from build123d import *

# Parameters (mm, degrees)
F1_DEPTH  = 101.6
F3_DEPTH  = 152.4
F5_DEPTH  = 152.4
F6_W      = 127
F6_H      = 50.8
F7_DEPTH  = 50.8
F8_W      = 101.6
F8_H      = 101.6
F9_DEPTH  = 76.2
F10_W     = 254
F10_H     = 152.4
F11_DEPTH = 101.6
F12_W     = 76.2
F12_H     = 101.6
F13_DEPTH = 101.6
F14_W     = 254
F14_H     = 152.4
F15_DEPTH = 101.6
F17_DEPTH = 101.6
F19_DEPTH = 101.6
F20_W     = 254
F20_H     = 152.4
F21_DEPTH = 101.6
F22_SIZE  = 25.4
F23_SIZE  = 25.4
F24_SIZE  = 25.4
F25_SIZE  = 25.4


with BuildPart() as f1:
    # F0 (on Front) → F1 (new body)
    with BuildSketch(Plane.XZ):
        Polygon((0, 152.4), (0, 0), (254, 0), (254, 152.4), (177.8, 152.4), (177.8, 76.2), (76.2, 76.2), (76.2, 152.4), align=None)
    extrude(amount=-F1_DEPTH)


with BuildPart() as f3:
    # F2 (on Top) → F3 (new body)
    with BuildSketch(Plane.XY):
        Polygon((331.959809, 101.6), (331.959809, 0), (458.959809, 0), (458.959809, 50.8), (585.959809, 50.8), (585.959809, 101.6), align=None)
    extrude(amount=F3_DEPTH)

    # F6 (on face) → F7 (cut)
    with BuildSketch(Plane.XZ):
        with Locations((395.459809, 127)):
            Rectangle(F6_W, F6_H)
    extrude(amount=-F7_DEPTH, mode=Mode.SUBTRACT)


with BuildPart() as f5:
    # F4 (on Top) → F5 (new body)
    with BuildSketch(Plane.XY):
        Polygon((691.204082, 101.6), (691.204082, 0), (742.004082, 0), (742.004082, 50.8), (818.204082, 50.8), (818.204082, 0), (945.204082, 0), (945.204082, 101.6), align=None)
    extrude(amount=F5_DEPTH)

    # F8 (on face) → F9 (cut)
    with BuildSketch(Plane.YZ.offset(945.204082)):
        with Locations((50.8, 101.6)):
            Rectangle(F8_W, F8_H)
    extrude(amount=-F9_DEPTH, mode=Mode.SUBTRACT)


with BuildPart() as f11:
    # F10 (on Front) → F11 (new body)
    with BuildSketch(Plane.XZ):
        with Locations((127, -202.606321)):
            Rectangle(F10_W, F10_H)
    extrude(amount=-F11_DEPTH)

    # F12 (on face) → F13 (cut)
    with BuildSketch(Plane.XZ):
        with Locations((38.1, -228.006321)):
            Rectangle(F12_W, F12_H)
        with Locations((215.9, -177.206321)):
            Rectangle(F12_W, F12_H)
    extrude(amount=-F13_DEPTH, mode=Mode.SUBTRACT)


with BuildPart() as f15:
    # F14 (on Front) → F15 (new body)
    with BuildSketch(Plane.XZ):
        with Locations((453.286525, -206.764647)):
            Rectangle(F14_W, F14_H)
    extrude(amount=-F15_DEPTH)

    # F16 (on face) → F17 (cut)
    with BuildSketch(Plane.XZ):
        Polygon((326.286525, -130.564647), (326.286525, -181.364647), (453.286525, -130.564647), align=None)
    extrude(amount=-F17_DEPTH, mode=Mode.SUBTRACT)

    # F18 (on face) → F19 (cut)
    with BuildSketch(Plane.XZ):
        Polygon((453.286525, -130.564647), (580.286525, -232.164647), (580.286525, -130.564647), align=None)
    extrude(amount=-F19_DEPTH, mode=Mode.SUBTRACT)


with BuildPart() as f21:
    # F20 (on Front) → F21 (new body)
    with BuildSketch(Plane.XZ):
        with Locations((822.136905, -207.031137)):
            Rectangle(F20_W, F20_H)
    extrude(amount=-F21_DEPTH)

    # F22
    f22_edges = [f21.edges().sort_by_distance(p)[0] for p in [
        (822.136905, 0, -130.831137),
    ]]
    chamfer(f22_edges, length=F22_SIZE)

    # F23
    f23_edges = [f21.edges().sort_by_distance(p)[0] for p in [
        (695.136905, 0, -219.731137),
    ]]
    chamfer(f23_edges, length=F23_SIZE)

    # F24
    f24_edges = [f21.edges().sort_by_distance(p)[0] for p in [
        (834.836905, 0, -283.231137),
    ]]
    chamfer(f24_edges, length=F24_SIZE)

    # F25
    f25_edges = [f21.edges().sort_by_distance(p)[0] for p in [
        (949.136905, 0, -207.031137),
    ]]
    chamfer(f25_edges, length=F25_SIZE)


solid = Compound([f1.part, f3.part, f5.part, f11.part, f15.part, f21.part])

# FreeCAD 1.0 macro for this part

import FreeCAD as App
import Part
import Sketcher
Q = App.Units.Quantity


def edges_at(feature, points):
    """Names of the edges that pass closest to the given points."""
    edges = feature.Shape.Edges
    near = lambda p: min(range(len(edges)), key=lambda i: edges[i].distToShape(Part.Vertex(*p))[0])
    return sorted({f"Edge{near(p) + 1}" for p in points})

doc = App.newDocument("Part")
body = doc.addObject("PartDesign::Body", "Body")

sketch1 = doc.addObject("Sketcher::SketchObject", "Sketch")
body.addObject(sketch1)
sketch1.AttachmentSupport = (doc.XZ_Plane, [""])
sketch1.MapMode = "FlatFace"
sketch1.addGeometry(Part.LineSegment(App.Vector(0, 152.4, 0), App.Vector(0, 0, 0)), False)
sketch1.addGeometry(Part.LineSegment(App.Vector(0, 0, 0), App.Vector(254, 0, 0)), False)
sketch1.addGeometry(Part.LineSegment(App.Vector(254, 0, 0), App.Vector(254, 152.4, 0)), False)
sketch1.addGeometry(Part.LineSegment(App.Vector(254, 152.4, 0), App.Vector(177.8, 152.4, 0)), False)
sketch1.addGeometry(Part.LineSegment(App.Vector(177.8, 152.4, 0), App.Vector(177.8, 76.2, 0)), False)
sketch1.addGeometry(Part.LineSegment(App.Vector(177.8, 76.2, 0), App.Vector(76.2, 76.2, 0)), False)
sketch1.addGeometry(Part.LineSegment(App.Vector(76.2, 76.2, 0), App.Vector(76.2, 152.4, 0)), False)
sketch1.addGeometry(Part.LineSegment(App.Vector(76.2, 152.4, 0), App.Vector(0, 152.4, 0)), False)
sketch1.addConstraint(Sketcher.Constraint("Coincident", 0, 2, 1, 1))
sketch1.addConstraint(Sketcher.Constraint("Coincident", 1, 2, 2, 1))
sketch1.addConstraint(Sketcher.Constraint("Coincident", 2, 2, 3, 1))
sketch1.addConstraint(Sketcher.Constraint("Coincident", 3, 2, 4, 1))
sketch1.addConstraint(Sketcher.Constraint("Coincident", 4, 2, 5, 1))
sketch1.addConstraint(Sketcher.Constraint("Coincident", 5, 2, 6, 1))
sketch1.addConstraint(Sketcher.Constraint("Coincident", 6, 2, 7, 1))
sketch1.addConstraint(Sketcher.Constraint("Coincident", 7, 2, 0, 1))
sketch1.addConstraint(Sketcher.Constraint("Vertical", 0))
sketch1.addConstraint(Sketcher.Constraint("Horizontal", 1))
sketch1.addConstraint(Sketcher.Constraint("Vertical", 2))
sketch1.addConstraint(Sketcher.Constraint("Horizontal", 3))
sketch1.addConstraint(Sketcher.Constraint("Vertical", 4))
sketch1.addConstraint(Sketcher.Constraint("Horizontal", 5))
sketch1.addConstraint(Sketcher.Constraint("Vertical", 6))
sketch1.addConstraint(Sketcher.Constraint("Horizontal", 7))
sketch1.addConstraint(Sketcher.Constraint("Coincident", 0, 2, -1, 1))
sketch1.addConstraint(Sketcher.Constraint("Horizontal", 3, 2, 6, 2))
sketch1.addConstraint(Sketcher.Constraint("Equal", 3, 7))
sketch1.addConstraint(Sketcher.Constraint("Equal", 7, 4))
sketch1.addConstraint(Sketcher.Constraint("DistanceX", 1, 1, 1, 2, Q("10 in")))
sketch1.addConstraint(Sketcher.Constraint("DistanceX", 3, 2, 3, 1, Q("3 in")))
sketch1.addConstraint(Sketcher.Constraint("DistanceY", 0, 2, 0, 1, Q("6 in")))
pad1 = doc.addObject("PartDesign::Pad", "Pad")
body.addObject(pad1)
pad1.Profile = sketch1
pad1.Length = Q("4 in")
pad1.Reversed = True
body2 = doc.addObject("PartDesign::Body", "Body001")

sketch2 = doc.addObject("Sketcher::SketchObject", "Sketch001")
body2.addObject(sketch2)
sketch2.AttachmentSupport = (doc.getObject("XY_Plane001"), [""])
sketch2.MapMode = "FlatFace"
sketch2.addGeometry(Part.LineSegment(App.Vector(331.959809, 101.6, 0), App.Vector(331.959809, 0, 0)), False)
sketch2.addGeometry(Part.LineSegment(App.Vector(331.959809, 0, 0), App.Vector(458.959809, 0, 0)), False)
sketch2.addGeometry(Part.LineSegment(App.Vector(458.959809, 0, 0), App.Vector(458.959809, 50.8, 0)), False)
sketch2.addGeometry(Part.LineSegment(App.Vector(458.959809, 50.8, 0), App.Vector(585.959809, 50.8, 0)), False)
sketch2.addGeometry(Part.LineSegment(App.Vector(585.959809, 50.8, 0), App.Vector(585.959809, 101.6, 0)), False)
sketch2.addGeometry(Part.LineSegment(App.Vector(585.959809, 101.6, 0), App.Vector(331.959809, 101.6, 0)), False)
sketch2.addConstraint(Sketcher.Constraint("Coincident", 0, 2, 1, 1))
sketch2.addConstraint(Sketcher.Constraint("Coincident", 1, 2, 2, 1))
sketch2.addConstraint(Sketcher.Constraint("Coincident", 2, 2, 3, 1))
sketch2.addConstraint(Sketcher.Constraint("Coincident", 3, 2, 4, 1))
sketch2.addConstraint(Sketcher.Constraint("Coincident", 4, 2, 5, 1))
sketch2.addConstraint(Sketcher.Constraint("Coincident", 5, 2, 0, 1))
sketch2.addConstraint(Sketcher.Constraint("Vertical", 0))
sketch2.addConstraint(Sketcher.Constraint("Horizontal", 1))
sketch2.addConstraint(Sketcher.Constraint("Vertical", 2))
sketch2.addConstraint(Sketcher.Constraint("Horizontal", 3))
sketch2.addConstraint(Sketcher.Constraint("Vertical", 4))
sketch2.addConstraint(Sketcher.Constraint("Horizontal", 5))
sketch2.addConstraint(Sketcher.Constraint("PointOnObject", 0, 2, -1))
sketch2.addConstraint(Sketcher.Constraint("Equal", 1, 3))
sketch2.addConstraint(Sketcher.Constraint("Equal", 2, 4))
sketch2.addConstraint(Sketcher.Constraint("DistanceX", 1, 1, 1, 2, Q("5 in")))
sketch2.addConstraint(Sketcher.Constraint("DistanceY", 0, 2, 0, 1, Q("4 in")))
sketch2.addConstraint(Sketcher.Constraint("DistanceX", -1, 1, 0, 2, 331.959809))
pad2 = doc.addObject("PartDesign::Pad", "Pad001")
body2.addObject(pad2)
pad2.Profile = sketch2
pad2.Length = Q("6 in")

sketch3 = doc.addObject("Sketcher::SketchObject", "Sketch002")
body2.addObject(sketch3)
sketch3.AttachmentSupport = (doc.getObject("XZ_Plane001"), [""])
sketch3.MapMode = "FlatFace"
sketch3.addGeometry(Part.LineSegment(App.Vector(331.959809, 152.4, 0), App.Vector(331.959809, 101.6, 0)), False)
sketch3.addGeometry(Part.LineSegment(App.Vector(331.959809, 101.6, 0), App.Vector(458.959809, 101.6, 0)), False)
sketch3.addGeometry(Part.LineSegment(App.Vector(458.959809, 101.6, 0), App.Vector(458.959809, 152.4, 0)), False)
sketch3.addGeometry(Part.LineSegment(App.Vector(458.959809, 152.4, 0), App.Vector(331.959809, 152.4, 0)), False)
sketch3.addConstraint(Sketcher.Constraint("Coincident", 0, 2, 1, 1))
sketch3.addConstraint(Sketcher.Constraint("Coincident", 1, 2, 2, 1))
sketch3.addConstraint(Sketcher.Constraint("Coincident", 2, 2, 3, 1))
sketch3.addConstraint(Sketcher.Constraint("Coincident", 3, 2, 0, 1))
sketch3.addConstraint(Sketcher.Constraint("Vertical", 0))
sketch3.addConstraint(Sketcher.Constraint("Horizontal", 1))
sketch3.addConstraint(Sketcher.Constraint("Vertical", 2))
sketch3.addConstraint(Sketcher.Constraint("Horizontal", 3))
sketch3.addConstraint(Sketcher.Constraint("DistanceX", 1, 1, 1, 2, Q("5 in")))
sketch3.addConstraint(Sketcher.Constraint("DistanceY", 0, 2, 0, 1, Q("2 in")))
sketch3.addConstraint(Sketcher.Constraint("DistanceY", -1, 1, 0, 2, Q("4 in")))
sketch3.addConstraint(Sketcher.Constraint("DistanceX", -1, 1, 0, 2, 331.959809))
pocket1 = doc.addObject("PartDesign::Pocket", "Pocket")
body2.addObject(pocket1)
pocket1.Profile = sketch3
pocket1.Length = Q("2 in")
body3 = doc.addObject("PartDesign::Body", "Body002")

sketch4 = doc.addObject("Sketcher::SketchObject", "Sketch003")
body3.addObject(sketch4)
sketch4.AttachmentSupport = (doc.getObject("XY_Plane002"), [""])
sketch4.MapMode = "FlatFace"
sketch4.addGeometry(Part.LineSegment(App.Vector(691.204082, 101.6, 0), App.Vector(691.204082, 0, 0)), False)
sketch4.addGeometry(Part.LineSegment(App.Vector(691.204082, 0, 0), App.Vector(742.004082, 0, 0)), False)
sketch4.addGeometry(Part.LineSegment(App.Vector(742.004082, 0, 0), App.Vector(742.004082, 50.8, 0)), False)
sketch4.addGeometry(Part.LineSegment(App.Vector(742.004082, 50.8, 0), App.Vector(818.204082, 50.8, 0)), False)
sketch4.addGeometry(Part.LineSegment(App.Vector(818.204082, 50.8, 0), App.Vector(818.204082, 0, 0)), False)
sketch4.addGeometry(Part.LineSegment(App.Vector(818.204082, 0, 0), App.Vector(945.204082, 0, 0)), False)
sketch4.addGeometry(Part.LineSegment(App.Vector(945.204082, 0, 0), App.Vector(945.204082, 101.6, 0)), False)
sketch4.addGeometry(Part.LineSegment(App.Vector(945.204082, 101.6, 0), App.Vector(691.204082, 101.6, 0)), False)
sketch4.addConstraint(Sketcher.Constraint("Coincident", 0, 2, 1, 1))
sketch4.addConstraint(Sketcher.Constraint("Coincident", 1, 2, 2, 1))
sketch4.addConstraint(Sketcher.Constraint("Coincident", 2, 2, 3, 1))
sketch4.addConstraint(Sketcher.Constraint("Coincident", 3, 2, 4, 1))
sketch4.addConstraint(Sketcher.Constraint("Coincident", 4, 2, 5, 1))
sketch4.addConstraint(Sketcher.Constraint("Coincident", 5, 2, 6, 1))
sketch4.addConstraint(Sketcher.Constraint("Coincident", 6, 2, 7, 1))
sketch4.addConstraint(Sketcher.Constraint("Coincident", 7, 2, 0, 1))
sketch4.addConstraint(Sketcher.Constraint("Vertical", 0))
sketch4.addConstraint(Sketcher.Constraint("Horizontal", 1))
sketch4.addConstraint(Sketcher.Constraint("Vertical", 2))
sketch4.addConstraint(Sketcher.Constraint("Horizontal", 3))
sketch4.addConstraint(Sketcher.Constraint("Vertical", 4))
sketch4.addConstraint(Sketcher.Constraint("Horizontal", 5))
sketch4.addConstraint(Sketcher.Constraint("Vertical", 6))
sketch4.addConstraint(Sketcher.Constraint("Horizontal", 7))
sketch4.addConstraint(Sketcher.Constraint("PointOnObject", 0, 2, -1))
sketch4.addConstraint(Sketcher.Constraint("PointOnObject", 4, 2, -1))
sketch4.addConstraint(Sketcher.Constraint("Equal", 1, 2))
sketch4.addConstraint(Sketcher.Constraint("DistanceX", 1, 1, 1, 2, Q("2 in")))
sketch4.addConstraint(Sketcher.Constraint("DistanceX", 3, 1, 3, 2, Q("3 in")))
sketch4.addConstraint(Sketcher.Constraint("DistanceX", 5, 1, 5, 2, Q("5 in")))
sketch4.addConstraint(Sketcher.Constraint("DistanceY", 0, 2, 0, 1, Q("4 in")))
sketch4.addConstraint(Sketcher.Constraint("DistanceX", -1, 1, 0, 2, 691.204082))
pad3 = doc.addObject("PartDesign::Pad", "Pad002")
body3.addObject(pad3)
pad3.Profile = sketch4
pad3.Length = Q("6 in")

sketch5 = doc.addObject("Sketcher::SketchObject", "Sketch004")
body3.addObject(sketch5)
sketch5.AttachmentSupport = (doc.getObject("YZ_Plane002"), [""])
sketch5.MapMode = "FlatFace"
sketch5.AttachmentOffset = App.Placement(App.Vector(0, 0, 945.204082), App.Rotation())
sketch5.addGeometry(Part.LineSegment(App.Vector(0, 152.4, 0), App.Vector(0, 50.8, 0)), False)
sketch5.addGeometry(Part.LineSegment(App.Vector(0, 50.8, 0), App.Vector(101.6, 50.8, 0)), False)
sketch5.addGeometry(Part.LineSegment(App.Vector(101.6, 50.8, 0), App.Vector(101.6, 152.4, 0)), False)
sketch5.addGeometry(Part.LineSegment(App.Vector(101.6, 152.4, 0), App.Vector(0, 152.4, 0)), False)
sketch5.addConstraint(Sketcher.Constraint("Coincident", 0, 2, 1, 1))
sketch5.addConstraint(Sketcher.Constraint("Coincident", 1, 2, 2, 1))
sketch5.addConstraint(Sketcher.Constraint("Coincident", 2, 2, 3, 1))
sketch5.addConstraint(Sketcher.Constraint("Coincident", 3, 2, 0, 1))
sketch5.addConstraint(Sketcher.Constraint("Vertical", 0))
sketch5.addConstraint(Sketcher.Constraint("Horizontal", 1))
sketch5.addConstraint(Sketcher.Constraint("Vertical", 2))
sketch5.addConstraint(Sketcher.Constraint("Horizontal", 3))
sketch5.addConstraint(Sketcher.Constraint("PointOnObject", 0, 2, -2))
sketch5.addConstraint(Sketcher.Constraint("Equal", 3, 0))
sketch5.addConstraint(Sketcher.Constraint("DistanceX", 1, 1, 1, 2, Q("4 in")))
sketch5.addConstraint(Sketcher.Constraint("DistanceY", -1, 1, 0, 2, Q("2 in")))
pocket2 = doc.addObject("PartDesign::Pocket", "Pocket001")
body3.addObject(pocket2)
pocket2.Profile = sketch5
pocket2.Length = Q("3 in")
body4 = doc.addObject("PartDesign::Body", "Body003")

sketch6 = doc.addObject("Sketcher::SketchObject", "Sketch005")
body4.addObject(sketch6)
sketch6.AttachmentSupport = (doc.getObject("XZ_Plane003"), [""])
sketch6.MapMode = "FlatFace"
sketch6.addGeometry(Part.LineSegment(App.Vector(0, -126.406321, 0), App.Vector(0, -278.806321, 0)), False)
sketch6.addGeometry(Part.LineSegment(App.Vector(0, -278.806321, 0), App.Vector(254, -278.806321, 0)), False)
sketch6.addGeometry(Part.LineSegment(App.Vector(254, -278.806321, 0), App.Vector(254, -126.406321, 0)), False)
sketch6.addGeometry(Part.LineSegment(App.Vector(254, -126.406321, 0), App.Vector(0, -126.406321, 0)), False)
sketch6.addConstraint(Sketcher.Constraint("Coincident", 0, 2, 1, 1))
sketch6.addConstraint(Sketcher.Constraint("Coincident", 1, 2, 2, 1))
sketch6.addConstraint(Sketcher.Constraint("Coincident", 2, 2, 3, 1))
sketch6.addConstraint(Sketcher.Constraint("Coincident", 3, 2, 0, 1))
sketch6.addConstraint(Sketcher.Constraint("Vertical", 0))
sketch6.addConstraint(Sketcher.Constraint("Horizontal", 1))
sketch6.addConstraint(Sketcher.Constraint("Vertical", 2))
sketch6.addConstraint(Sketcher.Constraint("Horizontal", 3))
sketch6.addConstraint(Sketcher.Constraint("PointOnObject", 0, 2, -2))
sketch6.addConstraint(Sketcher.Constraint("DistanceX", 1, 1, 1, 2, Q("10 in")))
sketch6.addConstraint(Sketcher.Constraint("DistanceY", 0, 2, 0, 1, Q("6 in")))
sketch6.addConstraint(Sketcher.Constraint("DistanceY", 0, 2, -1, 1, 278.806321))
pad4 = doc.addObject("PartDesign::Pad", "Pad003")
body4.addObject(pad4)
pad4.Profile = sketch6
pad4.Length = Q("4 in")
pad4.Reversed = True

sketch7 = doc.addObject("Sketcher::SketchObject", "Sketch006")
body4.addObject(sketch7)
sketch7.AttachmentSupport = (doc.getObject("XZ_Plane003"), [""])
sketch7.MapMode = "FlatFace"
sketch7.addGeometry(Part.LineSegment(App.Vector(0, -177.206321, 0), App.Vector(0, -278.806321, 0)), False)
sketch7.addGeometry(Part.LineSegment(App.Vector(0, -278.806321, 0), App.Vector(76.2, -278.806321, 0)), False)
sketch7.addGeometry(Part.LineSegment(App.Vector(76.2, -278.806321, 0), App.Vector(76.2, -177.206321, 0)), False)
sketch7.addGeometry(Part.LineSegment(App.Vector(76.2, -177.206321, 0), App.Vector(0, -177.206321, 0)), False)
sketch7.addGeometry(Part.LineSegment(App.Vector(177.8, -126.406321, 0), App.Vector(177.8, -228.006321, 0)), False)
sketch7.addGeometry(Part.LineSegment(App.Vector(177.8, -228.006321, 0), App.Vector(254, -228.006321, 0)), False)
sketch7.addGeometry(Part.LineSegment(App.Vector(254, -228.006321, 0), App.Vector(254, -126.406321, 0)), False)
sketch7.addGeometry(Part.LineSegment(App.Vector(254, -126.406321, 0), App.Vector(177.8, -126.406321, 0)), False)
sketch7.addConstraint(Sketcher.Constraint("Coincident", 0, 2, 1, 1))
sketch7.addConstraint(Sketcher.Constraint("Coincident", 1, 2, 2, 1))
sketch7.addConstraint(Sketcher.Constraint("Coincident", 2, 2, 3, 1))
sketch7.addConstraint(Sketcher.Constraint("Coincident", 3, 2, 0, 1))
sketch7.addConstraint(Sketcher.Constraint("Coincident", 4, 2, 5, 1))
sketch7.addConstraint(Sketcher.Constraint("Coincident", 5, 2, 6, 1))
sketch7.addConstraint(Sketcher.Constraint("Coincident", 6, 2, 7, 1))
sketch7.addConstraint(Sketcher.Constraint("Coincident", 7, 2, 4, 1))
sketch7.addConstraint(Sketcher.Constraint("Vertical", 0))
sketch7.addConstraint(Sketcher.Constraint("Horizontal", 1))
sketch7.addConstraint(Sketcher.Constraint("Vertical", 2))
sketch7.addConstraint(Sketcher.Constraint("Horizontal", 3))
sketch7.addConstraint(Sketcher.Constraint("Vertical", 4))
sketch7.addConstraint(Sketcher.Constraint("Horizontal", 5))
sketch7.addConstraint(Sketcher.Constraint("Vertical", 6))
sketch7.addConstraint(Sketcher.Constraint("Horizontal", 7))
sketch7.addConstraint(Sketcher.Constraint("PointOnObject", 0, 2, -2))
sketch7.addConstraint(Sketcher.Constraint("Equal", 3, 5))
sketch7.addConstraint(Sketcher.Constraint("Equal", 2, 4))
sketch7.addConstraint(Sketcher.Constraint("DistanceX", 1, 1, 1, 2, Q("3 in")))
sketch7.addConstraint(Sketcher.Constraint("DistanceY", 0, 2, 0, 1, Q("4 in")))
sketch7.addConstraint(Sketcher.Constraint("DistanceX", -1, 1, 4, 2, Q("7 in")))
sketch7.addConstraint(Sketcher.Constraint("DistanceY", 1, 2, 4, 2, Q("2 in")))
sketch7.addConstraint(Sketcher.Constraint("DistanceY", 0, 2, -1, 1, 278.806321))
pocket3 = doc.addObject("PartDesign::Pocket", "Pocket002")
body4.addObject(pocket3)
pocket3.Profile = sketch7
pocket3.Length = Q("4 in")
body5 = doc.addObject("PartDesign::Body", "Body004")

sketch8 = doc.addObject("Sketcher::SketchObject", "Sketch007")
body5.addObject(sketch8)
sketch8.AttachmentSupport = (doc.getObject("XZ_Plane004"), [""])
sketch8.MapMode = "FlatFace"
sketch8.addGeometry(Part.LineSegment(App.Vector(326.286525, -130.564647, 0), App.Vector(326.286525, -282.964647, 0)), False)
sketch8.addGeometry(Part.LineSegment(App.Vector(326.286525, -282.964647, 0), App.Vector(580.286525, -282.964647, 0)), False)
sketch8.addGeometry(Part.LineSegment(App.Vector(580.286525, -282.964647, 0), App.Vector(580.286525, -130.564647, 0)), False)
sketch8.addGeometry(Part.LineSegment(App.Vector(580.286525, -130.564647, 0), App.Vector(326.286525, -130.564647, 0)), False)
sketch8.addConstraint(Sketcher.Constraint("Coincident", 0, 2, 1, 1))
sketch8.addConstraint(Sketcher.Constraint("Coincident", 1, 2, 2, 1))
sketch8.addConstraint(Sketcher.Constraint("Coincident", 2, 2, 3, 1))
sketch8.addConstraint(Sketcher.Constraint("Coincident", 3, 2, 0, 1))
sketch8.addConstraint(Sketcher.Constraint("Vertical", 0))
sketch8.addConstraint(Sketcher.Constraint("Horizontal", 1))
sketch8.addConstraint(Sketcher.Constraint("Vertical", 2))
sketch8.addConstraint(Sketcher.Constraint("Horizontal", 3))
sketch8.addConstraint(Sketcher.Constraint("DistanceX", 1, 1, 1, 2, Q("10 in")))
sketch8.addConstraint(Sketcher.Constraint("DistanceY", 0, 2, 0, 1, Q("6 in")))
sketch8.addConstraint(Sketcher.Constraint("DistanceX", -1, 1, 0, 2, 326.286525))
sketch8.addConstraint(Sketcher.Constraint("DistanceY", 0, 2, -1, 1, 282.964647))
pad5 = doc.addObject("PartDesign::Pad", "Pad004")
body5.addObject(pad5)
pad5.Profile = sketch8
pad5.Length = Q("4 in")
pad5.Reversed = True

sketch9 = doc.addObject("Sketcher::SketchObject", "Sketch008")
body5.addObject(sketch9)
sketch9.AttachmentSupport = (doc.getObject("XZ_Plane004"), [""])
sketch9.MapMode = "FlatFace"
sketch9.addGeometry(Part.LineSegment(App.Vector(326.286525, -130.564647, 0), App.Vector(326.286525, -181.364647, 0)), False)
sketch9.addGeometry(Part.LineSegment(App.Vector(326.286525, -181.364647, 0), App.Vector(453.286525, -130.564647, 0)), False)
sketch9.addGeometry(Part.LineSegment(App.Vector(453.286525, -130.564647, 0), App.Vector(326.286525, -130.564647, 0)), False)
sketch9.addConstraint(Sketcher.Constraint("Coincident", 0, 2, 1, 1))
sketch9.addConstraint(Sketcher.Constraint("Coincident", 1, 2, 2, 1))
sketch9.addConstraint(Sketcher.Constraint("Coincident", 2, 2, 0, 1))
sketch9.addConstraint(Sketcher.Constraint("Vertical", 0))
sketch9.addConstraint(Sketcher.Constraint("Horizontal", 2))
sketch9.addConstraint(Sketcher.Constraint("DistanceX", 2, 2, 2, 1, Q("5 in")))
sketch9.addConstraint(Sketcher.Constraint("DistanceY", 0, 2, 0, 1, Q("2 in")))
sketch9.addConstraint(Sketcher.Constraint("DistanceX", -1, 1, 0, 2, 326.286525))
sketch9.addConstraint(Sketcher.Constraint("DistanceY", 0, 2, -1, 1, 181.364647))
pocket4 = doc.addObject("PartDesign::Pocket", "Pocket003")
body5.addObject(pocket4)
pocket4.Profile = sketch9
pocket4.Length = Q("4 in")

sketch10 = doc.addObject("Sketcher::SketchObject", "Sketch009")
body5.addObject(sketch10)
sketch10.AttachmentSupport = (doc.getObject("XZ_Plane004"), [""])
sketch10.MapMode = "FlatFace"
sketch10.addGeometry(Part.LineSegment(App.Vector(453.286525, -130.564647, 0), App.Vector(580.286525, -232.164647, 0)), False)
sketch10.addGeometry(Part.LineSegment(App.Vector(580.286525, -232.164647, 0), App.Vector(580.286525, -130.564647, 0)), False)
sketch10.addGeometry(Part.LineSegment(App.Vector(580.286525, -130.564647, 0), App.Vector(453.286525, -130.564647, 0)), False)
sketch10.addConstraint(Sketcher.Constraint("Coincident", 0, 2, 1, 1))
sketch10.addConstraint(Sketcher.Constraint("Coincident", 1, 2, 2, 1))
sketch10.addConstraint(Sketcher.Constraint("Coincident", 2, 2, 0, 1))
sketch10.addConstraint(Sketcher.Constraint("Vertical", 1))
sketch10.addConstraint(Sketcher.Constraint("Horizontal", 2))
sketch10.addConstraint(Sketcher.Constraint("DistanceX", 2, 2, 2, 1, Q("5 in")))
sketch10.addConstraint(Sketcher.Constraint("DistanceY", 1, 1, 1, 2, Q("4 in")))
sketch10.addConstraint(Sketcher.Constraint("DistanceX", -1, 1, 0, 2, 580.286525))
sketch10.addConstraint(Sketcher.Constraint("DistanceY", 0, 2, -1, 1, 232.164647))
pocket5 = doc.addObject("PartDesign::Pocket", "Pocket004")
body5.addObject(pocket5)
pocket5.Profile = sketch10
pocket5.Length = Q("4 in")
body6 = doc.addObject("PartDesign::Body", "Body005")

sketch11 = doc.addObject("Sketcher::SketchObject", "Sketch010")
body6.addObject(sketch11)
sketch11.AttachmentSupport = (doc.getObject("XZ_Plane005"), [""])
sketch11.MapMode = "FlatFace"
sketch11.addGeometry(Part.LineSegment(App.Vector(695.136905, -130.831137, 0), App.Vector(695.136905, -283.231137, 0)), False)
sketch11.addGeometry(Part.LineSegment(App.Vector(695.136905, -283.231137, 0), App.Vector(949.136905, -283.231137, 0)), False)
sketch11.addGeometry(Part.LineSegment(App.Vector(949.136905, -283.231137, 0), App.Vector(949.136905, -130.831137, 0)), False)
sketch11.addGeometry(Part.LineSegment(App.Vector(949.136905, -130.831137, 0), App.Vector(695.136905, -130.831137, 0)), False)
sketch11.addConstraint(Sketcher.Constraint("Coincident", 0, 2, 1, 1))
sketch11.addConstraint(Sketcher.Constraint("Coincident", 1, 2, 2, 1))
sketch11.addConstraint(Sketcher.Constraint("Coincident", 2, 2, 3, 1))
sketch11.addConstraint(Sketcher.Constraint("Coincident", 3, 2, 0, 1))
sketch11.addConstraint(Sketcher.Constraint("Vertical", 0))
sketch11.addConstraint(Sketcher.Constraint("Horizontal", 1))
sketch11.addConstraint(Sketcher.Constraint("Vertical", 2))
sketch11.addConstraint(Sketcher.Constraint("Horizontal", 3))
sketch11.addConstraint(Sketcher.Constraint("DistanceX", 1, 1, 1, 2, Q("10 in")))
sketch11.addConstraint(Sketcher.Constraint("DistanceY", 0, 2, 0, 1, Q("6 in")))
sketch11.addConstraint(Sketcher.Constraint("DistanceX", -1, 1, 0, 2, 695.136905))
sketch11.addConstraint(Sketcher.Constraint("DistanceY", 0, 2, -1, 1, 283.231137))
pad6 = doc.addObject("PartDesign::Pad", "Pad005")
body6.addObject(pad6)
pad6.Profile = sketch11
pad6.Length = Q("4 in")
pad6.Reversed = True
doc.recompute()

chamfer = doc.addObject("PartDesign::Chamfer", "Chamfer")
body6.addObject(chamfer)
chamfer.Base = (pad6, edges_at(pad6, [(822.137, 0, -130.831)]))
chamfer.Size = Q("1 in")
doc.recompute()

chamfer2 = doc.addObject("PartDesign::Chamfer", "Chamfer001")
body6.addObject(chamfer2)
chamfer2.Base = (chamfer, edges_at(chamfer, [(695.137, 0, -219.731)]))
chamfer2.Size = Q("1 in")
doc.recompute()

chamfer3 = doc.addObject("PartDesign::Chamfer", "Chamfer002")
body6.addObject(chamfer3)
chamfer3.Base = (chamfer2, edges_at(chamfer2, [(834.837, 0, -283.231)]))
chamfer3.Size = Q("1 in")
doc.recompute()

chamfer4 = doc.addObject("PartDesign::Chamfer", "Chamfer003")
body6.addObject(chamfer4)
chamfer4.Base = (chamfer3, edges_at(chamfer3, [(949.137, 0, -207.031)]))
chamfer4.Size = Q("1 in")

doc.recompute()
